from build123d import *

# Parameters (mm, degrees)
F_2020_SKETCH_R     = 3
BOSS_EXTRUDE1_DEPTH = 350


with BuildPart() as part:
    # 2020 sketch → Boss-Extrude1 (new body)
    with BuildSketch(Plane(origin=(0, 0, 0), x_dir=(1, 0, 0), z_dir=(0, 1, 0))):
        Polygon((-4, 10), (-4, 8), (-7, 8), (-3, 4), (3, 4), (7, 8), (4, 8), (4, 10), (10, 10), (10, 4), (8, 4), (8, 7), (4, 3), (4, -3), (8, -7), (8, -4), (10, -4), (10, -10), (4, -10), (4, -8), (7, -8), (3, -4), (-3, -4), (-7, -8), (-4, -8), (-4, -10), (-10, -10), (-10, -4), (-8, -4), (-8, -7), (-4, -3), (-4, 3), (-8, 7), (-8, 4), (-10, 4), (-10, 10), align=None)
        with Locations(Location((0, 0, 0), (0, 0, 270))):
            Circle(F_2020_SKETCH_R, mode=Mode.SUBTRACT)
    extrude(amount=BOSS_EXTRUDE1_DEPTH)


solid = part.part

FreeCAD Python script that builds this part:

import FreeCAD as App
import Part
import Sketcher

V = App.Vector
Q = App.Units.Quantity


def add_polygon(sketch, points):
    """Adds a closed chain of lines whose ends are joined by coincident constraints."""
    first, n = sketch.GeometryCount, len(points)
    for a, b in zip(points, points[1:] + points[:1]):
        sketch.addGeometry(Part.LineSegment(App.Vector(*a, 0), App.Vector(*b, 0)), False)
    for i in range(n):
        sketch.addConstraint(Sketcher.Constraint("Coincident", first + i, 2, first + (i + 1) % n, 1))

doc = App.newDocument("Part")
body = doc.addObject("PartDesign::Body", "Body")

sketch1 = doc.addObject("Sketcher::SketchObject", "Sketch")
body.addObject(sketch1)
sketch1.AttachmentSupport = (doc.XZ_Plane, [""])
sketch1.MapMode = "FlatFace"
add_polygon(sketch1, [(-4, -8), (-4, -10), (-10, -10), (-10, -4), (-8, -4), (-8, -7), (-4, -3), (-4, 3), (-8, 7), (-8, 4), (-10, 4), (-10, 10), (-4, 10), (-4, 8), (-7, 8), (-3, 4), (3, 4), (7, 8), (4, 8), (4, 10), (10, 10), (10, 4), (8, 4), (8, 7), (4, 3), (4, -3), (8, -7), (8, -4), (10, -4), (10, -10), (4, -10), (4, -8), (7, -8), (3, -4), (-3, -4), (-7, -8)])
sketch1.addGeometry(Part.Circle(V(0, 0, 0), V(0, 0, 1), 3), False)
sketch1.addConstraint(Sketcher.Constraint("Vertical", 0))
sketch1.addConstraint(Sketcher.Constraint("Horizontal", 1))
sketch1.addConstraint(Sketcher.Constraint("Vertical", 2))
sketch1.addConstraint(Sketcher.Constraint("Horizontal", 3))
sketch1.addConstraint(Sketcher.Constraint("Vertical", 4))
sketch1.addConstraint(Sketcher.Constraint("Vertical", 6))
sketch1.addConstraint(Sketcher.Constraint("Vertical", 8))
sketch1.addConstraint(Sketcher.Constraint("Horizontal", 9))
sketch1.addConstraint(Sketcher.Constraint("Vertical", 10))
sketch1.addConstraint(Sketcher.Constraint("Horizontal", 11))
sketch1.addConstraint(Sketcher.Constraint("Vertical", 12))
sketch1.addConstraint(Sketcher.Constraint("Horizontal", 13))
sketch1.addConstraint(Sketcher.Constraint("Horizontal", 15))
sketch1.addConstraint(Sketcher.Constraint("Horizontal", 17))
sketch1.addConstraint(Sketcher.Constraint("Vertical", 18))
sketch1.addConstraint(Sketcher.Constraint("Horizontal", 19))
sketch1.addConstraint(Sketcher.Constraint("Vertical", 20))
sketch1.addConstraint(Sketcher.Constraint("Horizontal", 21))
sketch1.addConstraint(Sketcher.Constraint("Vertical", 22))
sketch1.addConstraint(Sketcher.Constraint("Vertical", 24))
sketch1.addConstraint(Sketcher.Constraint("Vertical", 26))
sketch1.addConstraint(Sketcher.Constraint("Horizontal", 27))
sketch1.addConstraint(Sketcher.Constraint("Vertical", 28))
sketch1.addConstraint(Sketcher.Constraint("Horizontal", 29))
sketch1.addConstraint(Sketcher.Constraint("Vertical", 30))
sketch1.addConstraint(Sketcher.Constraint("Horizontal", 31))
sketch1.addConstraint(Sketcher.Constraint("Horizontal", 33))
sketch1.addConstraint(Sketcher.Constraint("Horizontal", 35))
sketch1.addConstraint(Sketcher.Constraint("Coincident", 36, 3, -1, 1))
sketch1.addConstraint(Sketcher.Constraint("Symmetric", 0, 2, 18, 2, -1, 1))
sketch1.addConstraint(Sketcher.Constraint("Symmetric", 2, 2, 20, 2, -1, 1))
sketch1.addConstraint(Sketcher.Constraint("Symmetric", 4, 2, 22, 2, -1, 1))
sketch1.addConstraint(Sketcher.Constraint("Symmetric", 5, 2, 23, 2, -1, 1))
sketch1.addConstraint(Sketcher.Constraint("Symmetric", 7, 2, 25, 2, -1, 1))
sketch1.addConstraint(Sketcher.Constraint("Symmetric", 9, 2, 27, 2, -1, 1))
sketch1.addConstraint(Sketcher.Constraint("Symmetric", 11, 2, 29, 2, -1, 1))
sketch1.addConstraint(Sketcher.Constraint("Symmetric", 13, 2, 31, 2, -1, 1))
sketch1.addConstraint(Sketcher.Constraint("Symmetric", 14, 2, 32, 2, -1, 1))
sketch1.addConstraint(Sketcher.Constraint("Symmetric", 16, 2, 34, 2, -1, 1))
sketch1.addConstraint(Sketcher.Constraint("Symmetric", 13, 2, 16, 2, -2))
sketch1.addConstraint(Sketcher.Constraint("Symmetric", 11, 2, 18, 2, -2))
sketch1.addConstraint(Sketcher.Constraint("Symmetric", 9, 2, 20, 2, -2))
sketch1.addConstraint(Sketcher.Constraint("Symmetric", 7, 2, 22, 2, -2))
sketch1.addConstraint(Sketcher.Constraint("Perpendicular", 5, 7))
sketch1.addConstraint(Sketcher.Constraint("Parallel", 7, 14))
sketch1.addConstraint(Sketcher.Constraint("Perpendicular", 14, 16))
sketch1.addConstraint(Sketcher.Constraint("Perpendicular", 23, 25))
sketch1.addConstraint(Sketcher.Constraint("Perpendicular", 32, 34))
sketch1.addConstraint(Sketcher.Constraint("Horizontal", 9, 2, 14, 2))
sketch1.addConstraint(Sketcher.Constraint("Horizontal", 6, 2, 23, 2))
sketch1.addConstraint(Sketcher.Constraint("Vertical", 0, 2, 5, 2))
sketch1.addConstraint(Sketcher.Constraint("Equal", 11, 15))
sketch1.addConstraint(Sketcher.Constraint("Equal", 27, 0))
sketch1.addConstraint(Sketcher.Constraint("Equal", 33, 2))
sketch1.addConstraint(Sketcher.Constraint("Equal", 35, 4))
sketch1.addConstraint(Sketcher.Constraint("Equal", 2, 6))
sketch1.addConstraint(Sketcher.Constraint("Diameter", 36, Q("6 mm")))
sketch1.addConstraint(Sketcher.Constraint("DistanceX", 1, 2, 1, 1, Q("6 mm")))
sketch1.addConstraint(Sketcher.Constraint("DistanceX", 3, 1, 3, 2, Q("2 mm")))
sketch1.addConstraint(Sketcher.Constraint("DistanceX", 13, 2, 13, 1, Q("3 mm")))
pad1 = doc.addObject("PartDesign::Pad", "Pad")
body.addObject(pad1)
pad1.Profile = sketch1
pad1.Length = 350
pad1.Reversed = True

doc.recompute()
